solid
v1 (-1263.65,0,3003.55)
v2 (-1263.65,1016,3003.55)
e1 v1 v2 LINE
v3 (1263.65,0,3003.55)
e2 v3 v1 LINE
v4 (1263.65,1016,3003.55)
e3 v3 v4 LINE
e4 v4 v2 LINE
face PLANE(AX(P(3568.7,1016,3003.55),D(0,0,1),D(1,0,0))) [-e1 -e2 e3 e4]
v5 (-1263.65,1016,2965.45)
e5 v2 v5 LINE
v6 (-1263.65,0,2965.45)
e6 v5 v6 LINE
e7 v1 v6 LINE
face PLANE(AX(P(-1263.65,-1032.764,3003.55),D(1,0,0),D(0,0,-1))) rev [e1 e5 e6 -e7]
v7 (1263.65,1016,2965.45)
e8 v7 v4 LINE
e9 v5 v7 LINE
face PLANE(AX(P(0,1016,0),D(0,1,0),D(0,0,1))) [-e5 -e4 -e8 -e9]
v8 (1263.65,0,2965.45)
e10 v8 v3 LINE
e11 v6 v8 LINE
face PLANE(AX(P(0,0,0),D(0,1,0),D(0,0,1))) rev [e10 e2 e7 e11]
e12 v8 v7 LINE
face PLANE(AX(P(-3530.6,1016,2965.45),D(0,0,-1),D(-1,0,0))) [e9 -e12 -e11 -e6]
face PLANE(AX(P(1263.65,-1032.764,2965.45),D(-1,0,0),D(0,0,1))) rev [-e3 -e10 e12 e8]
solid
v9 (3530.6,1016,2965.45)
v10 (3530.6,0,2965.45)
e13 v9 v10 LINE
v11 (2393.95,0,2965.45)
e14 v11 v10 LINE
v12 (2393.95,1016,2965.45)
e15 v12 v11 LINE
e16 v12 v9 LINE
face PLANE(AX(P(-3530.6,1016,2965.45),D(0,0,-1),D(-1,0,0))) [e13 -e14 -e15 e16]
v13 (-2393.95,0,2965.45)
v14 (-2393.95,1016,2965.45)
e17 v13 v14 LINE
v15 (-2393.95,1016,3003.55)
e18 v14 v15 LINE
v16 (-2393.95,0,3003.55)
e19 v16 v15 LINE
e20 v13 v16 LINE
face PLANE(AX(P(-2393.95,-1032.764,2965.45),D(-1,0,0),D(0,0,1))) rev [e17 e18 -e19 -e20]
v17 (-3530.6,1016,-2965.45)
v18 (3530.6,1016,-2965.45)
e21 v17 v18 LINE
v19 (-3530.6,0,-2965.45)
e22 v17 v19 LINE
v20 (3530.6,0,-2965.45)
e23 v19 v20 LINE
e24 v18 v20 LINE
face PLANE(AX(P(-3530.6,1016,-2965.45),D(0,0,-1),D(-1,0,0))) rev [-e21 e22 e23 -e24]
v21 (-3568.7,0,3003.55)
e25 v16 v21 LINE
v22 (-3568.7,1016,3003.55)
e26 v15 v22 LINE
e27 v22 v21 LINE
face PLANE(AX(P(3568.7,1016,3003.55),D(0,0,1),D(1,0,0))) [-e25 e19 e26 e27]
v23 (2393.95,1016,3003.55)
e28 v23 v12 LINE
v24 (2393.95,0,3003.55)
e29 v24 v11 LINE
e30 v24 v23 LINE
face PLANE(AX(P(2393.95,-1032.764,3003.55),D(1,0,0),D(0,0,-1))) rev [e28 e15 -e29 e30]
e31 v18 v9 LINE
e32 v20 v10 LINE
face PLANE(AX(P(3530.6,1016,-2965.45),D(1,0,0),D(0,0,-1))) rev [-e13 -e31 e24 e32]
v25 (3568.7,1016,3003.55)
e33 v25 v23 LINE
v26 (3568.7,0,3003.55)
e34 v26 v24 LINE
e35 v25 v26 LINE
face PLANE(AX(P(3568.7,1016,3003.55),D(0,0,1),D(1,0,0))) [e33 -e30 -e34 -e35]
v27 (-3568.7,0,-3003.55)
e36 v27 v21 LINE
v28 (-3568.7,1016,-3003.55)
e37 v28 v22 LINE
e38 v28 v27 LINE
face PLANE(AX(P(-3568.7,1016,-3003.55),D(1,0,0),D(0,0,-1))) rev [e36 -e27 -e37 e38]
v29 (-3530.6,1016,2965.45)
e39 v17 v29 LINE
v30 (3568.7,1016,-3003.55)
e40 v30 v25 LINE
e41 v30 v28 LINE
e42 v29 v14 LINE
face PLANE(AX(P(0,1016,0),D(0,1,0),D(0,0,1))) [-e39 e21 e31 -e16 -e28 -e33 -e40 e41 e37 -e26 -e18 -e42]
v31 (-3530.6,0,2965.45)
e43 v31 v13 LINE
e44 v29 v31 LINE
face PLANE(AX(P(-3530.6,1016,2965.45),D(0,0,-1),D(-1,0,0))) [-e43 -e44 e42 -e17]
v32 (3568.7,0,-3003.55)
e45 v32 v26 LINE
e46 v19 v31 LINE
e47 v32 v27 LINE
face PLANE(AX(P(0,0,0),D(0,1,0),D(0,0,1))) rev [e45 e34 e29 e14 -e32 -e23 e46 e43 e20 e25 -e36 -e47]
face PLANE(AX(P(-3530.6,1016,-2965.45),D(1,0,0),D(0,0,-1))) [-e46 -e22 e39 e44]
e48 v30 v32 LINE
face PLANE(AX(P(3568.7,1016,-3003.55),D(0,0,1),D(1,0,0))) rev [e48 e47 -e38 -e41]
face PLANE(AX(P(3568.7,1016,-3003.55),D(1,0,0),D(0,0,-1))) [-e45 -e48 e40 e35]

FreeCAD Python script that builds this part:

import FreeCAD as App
import Part
import Sketcher
from FreeCAD import Vector
Q = App.Units.Quantity


def add_polygon(sketch, points):
    """Adds a closed chain of lines whose ends are joined by coincident constraints."""
    first, n = sketch.GeometryCount, len(points)
    for a, b in zip(points, points[1:] + points[:1]):
        sketch.addGeometry(Part.LineSegment(App.Vector(*a, 0), App.Vector(*b, 0)), False)
    for i in range(n):
        sketch.addConstraint(Sketcher.Constraint("Coincident", first + i, 2, first + (i + 1) % n, 1))

doc = App.newDocument("Part")
body = doc.addObject("PartDesign::Body", "Body")
body.AllowCompound = True

# Sketch on XZ plane
sketch1 = body.newObject("Sketcher::SketchObject", "Sketch")
sketch1.AttachmentSupport = (doc.getObject("XZ_Plane"), [""])
sketch1.MapMode = "FlatFace"
add_polygon(sketch1, [(-3568.7, -3003.55), (-3568.7, 3003.55), (3568.7, 3003.55), (3568.7, -3003.55)])  # lines 0-3
add_polygon(sketch1, [(3530.6, 2965.45), (-3530.6, 2965.45), (-3530.6, -2965.45), (3530.6, -2965.45)])  # lines 4-7
sketch1.addConstraint([
    Sketcher.Constraint("Vertical", 0),
    Sketcher.Constraint("Horizontal", 1),
    Sketcher.Constraint("Vertical", 2),
    Sketcher.Constraint("Horizontal", 3),
    Sketcher.Constraint("Horizontal", 4),
    Sketcher.Constraint("Vertical", 5),
    Sketcher.Constraint("Horizontal", 6),
    Sketcher.Constraint("Vertical", 7),
    Sketcher.Constraint("Symmetric", 0, 2, 2, 2, -1, 1),
    Sketcher.Constraint("Symmetric", 4, 2, 6, 2, -1, 1),
    Sketcher.Constraint("DistanceX", 1, 1, 1, 2, Q("281 in")),
    Sketcher.Constraint("DistanceX", 4, 2, 4, 1, Q("278 in")),
    Sketcher.Constraint("DistanceY", 0, 1, 0, 2, Q("236.5 in")),
    Sketcher.Constraint("DistanceY", 5, 2, 5, 1, Q("233.5 in")),
])
pad1 = body.newObject("PartDesign::Pad", "Pad")
pad1.Profile = sketch1
pad1.Length = Q("40 in")
pad1.Reversed = True

# Sketch on XZ plane
sketch2 = body.newObject("Sketcher::SketchObject", "Sketch001")
sketch2.AttachmentSupport = (doc.getObject("XZ_Plane"), [""])
sketch2.MapMode = "FlatFace"
sketch2.AttachmentOffset = App.Placement(Vector(0, 0, -40 * 25.4), App.Rotation())
add_polygon(sketch2, [(-2393.95, 2965.45), (-2393.95, 3003.55), (-1263.65, 3003.55), (-1263.65, 2965.45)])  # lines 0-3
add_polygon(sketch2, [(1263.65, 2965.45), (1263.65, 3003.55), (2393.95, 3003.55), (2393.95, 2965.45)])  # lines 4-7
sketch2.addConstraint([
    Sketcher.Constraint("Vertical", 0),
    Sketcher.Constraint("Horizontal", 1),
    Sketcher.Constraint("Vertical", 2),
    Sketcher.Constraint("Horizontal", 3),
    Sketcher.Constraint("Vertical", 4),
    Sketcher.Constraint("Horizontal", 5),
    Sketcher.Constraint("Vertical", 6),
    Sketcher.Constraint("Horizontal", 7),
    Sketcher.Constraint("Symmetric", 1, 2, 4, 2, -2),
    Sketcher.Constraint("Symmetric", 3, 2, 6, 2, -2),
    Sketcher.Constraint("DistanceX", 1, 1, 1, 2, Q("44.5 in")),
    Sketcher.Constraint("DistanceY", 0, 1, 0, 2, Q("1.5 in")),
    Sketcher.Constraint("DistanceX", 0, 2, 4, 2, Q("144 in")),
    Sketcher.Constraint("DistanceY", -1, 1, 0, 2, Q("118.25 in")),
])
pocket1 = body.newObject("PartDesign::Pocket", "Pocket")
pocket1.Profile = sketch2
pocket1.Length = Q("80.66 in")
pocket1.Reversed = True

doc.recompute()
